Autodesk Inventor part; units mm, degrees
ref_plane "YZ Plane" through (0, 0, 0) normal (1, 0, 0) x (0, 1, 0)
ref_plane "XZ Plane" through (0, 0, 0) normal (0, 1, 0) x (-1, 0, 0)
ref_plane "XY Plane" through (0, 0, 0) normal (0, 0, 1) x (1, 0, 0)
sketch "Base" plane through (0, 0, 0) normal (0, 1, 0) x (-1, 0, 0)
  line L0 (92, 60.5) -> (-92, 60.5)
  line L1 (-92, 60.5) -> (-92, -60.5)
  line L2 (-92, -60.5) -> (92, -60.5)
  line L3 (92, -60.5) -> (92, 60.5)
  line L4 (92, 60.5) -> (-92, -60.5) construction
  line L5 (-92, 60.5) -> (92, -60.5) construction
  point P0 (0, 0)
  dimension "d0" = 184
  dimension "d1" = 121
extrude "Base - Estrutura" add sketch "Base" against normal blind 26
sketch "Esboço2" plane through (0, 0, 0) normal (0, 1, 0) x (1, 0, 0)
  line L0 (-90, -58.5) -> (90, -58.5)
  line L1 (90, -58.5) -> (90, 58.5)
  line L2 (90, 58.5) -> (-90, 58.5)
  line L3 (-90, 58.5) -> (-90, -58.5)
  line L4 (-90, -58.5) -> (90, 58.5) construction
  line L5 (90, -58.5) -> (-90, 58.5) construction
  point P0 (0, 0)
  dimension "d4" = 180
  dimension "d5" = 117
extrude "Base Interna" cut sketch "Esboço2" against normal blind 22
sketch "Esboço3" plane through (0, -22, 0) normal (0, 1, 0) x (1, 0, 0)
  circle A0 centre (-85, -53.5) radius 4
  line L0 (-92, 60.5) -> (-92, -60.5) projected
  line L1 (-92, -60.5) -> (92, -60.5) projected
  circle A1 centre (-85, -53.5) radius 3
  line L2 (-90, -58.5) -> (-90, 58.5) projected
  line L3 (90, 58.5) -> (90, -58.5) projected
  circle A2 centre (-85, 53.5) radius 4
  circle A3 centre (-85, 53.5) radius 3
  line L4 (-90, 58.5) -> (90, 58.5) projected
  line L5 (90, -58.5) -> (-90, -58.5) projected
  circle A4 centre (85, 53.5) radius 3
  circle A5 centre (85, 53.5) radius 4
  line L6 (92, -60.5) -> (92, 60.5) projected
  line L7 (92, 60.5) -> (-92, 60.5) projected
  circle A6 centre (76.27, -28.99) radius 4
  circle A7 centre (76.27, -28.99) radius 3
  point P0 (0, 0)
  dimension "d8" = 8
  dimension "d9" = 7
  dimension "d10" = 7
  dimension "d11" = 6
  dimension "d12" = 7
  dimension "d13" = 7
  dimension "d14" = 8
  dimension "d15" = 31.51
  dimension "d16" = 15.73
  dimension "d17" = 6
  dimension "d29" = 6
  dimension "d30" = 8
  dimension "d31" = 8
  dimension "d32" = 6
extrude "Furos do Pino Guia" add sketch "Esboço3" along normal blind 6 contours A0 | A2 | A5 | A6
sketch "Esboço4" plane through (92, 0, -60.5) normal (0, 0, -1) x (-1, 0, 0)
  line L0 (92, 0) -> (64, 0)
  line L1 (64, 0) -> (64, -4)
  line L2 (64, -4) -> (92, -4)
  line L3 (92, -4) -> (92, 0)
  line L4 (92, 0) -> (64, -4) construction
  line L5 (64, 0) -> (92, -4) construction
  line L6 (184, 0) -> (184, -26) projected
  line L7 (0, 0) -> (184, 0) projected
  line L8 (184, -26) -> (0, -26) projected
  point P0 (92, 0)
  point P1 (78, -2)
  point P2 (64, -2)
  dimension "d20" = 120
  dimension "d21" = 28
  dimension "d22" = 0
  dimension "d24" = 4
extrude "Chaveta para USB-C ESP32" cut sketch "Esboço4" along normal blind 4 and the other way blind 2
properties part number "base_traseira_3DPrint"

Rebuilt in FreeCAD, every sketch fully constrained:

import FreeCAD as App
import Part
import Sketcher

V = App.Vector


def add_polygon(sketch, points):
    """Adds a closed chain of lines whose ends are joined by coincident constraints."""
    first, n = sketch.GeometryCount, len(points)
    for a, b in zip(points, points[1:] + points[:1]):
        sketch.addGeometry(Part.LineSegment(App.Vector(*a, 0), App.Vector(*b, 0)), False)
    for i in range(n):
        sketch.addConstraint(Sketcher.Constraint("Coincident", first + i, 2, first + (i + 1) % n, 1))

doc = App.newDocument("Part")
body = doc.addObject("PartDesign::Body", "Body")

sketch1 = body.newObject("Sketcher::SketchObject", "Sketch")
sketch1.AttachmentSupport = (doc.getObject("XZ_Plane"), [""])
sketch1.MapMode = "FlatFace"
add_polygon(sketch1, [(-92, -60.5), (-92, 60.5), (92, 60.5), (92, -60.5)])
sketch1.addConstraint([
    Sketcher.Constraint("Vertical", 0),
    Sketcher.Constraint("Horizontal", 1),
    Sketcher.Constraint("Vertical", 2),
    Sketcher.Constraint("Horizontal", 3),
    Sketcher.Constraint("Symmetric", 0, 2, 2, 2, -1, 1),
    Sketcher.Constraint("DistanceX", 1, 1, 1, 2, 184.0),
    Sketcher.Constraint("DistanceY", 0, 1, 0, 2, 121.0),
])
pad1 = body.newObject("PartDesign::Pad", "Pad")
pad1.Profile = sketch1
pad1.Length = 26

sketch2 = body.newObject("Sketcher::SketchObject", "Sketch001")
sketch2.AttachmentSupport = (doc.getObject("XZ_Plane"), [""])
sketch2.MapMode = "FlatFace"
add_polygon(sketch2, [(-90, -58.5), (-90, 58.5), (90, 58.5), (90, -58.5)])
sketch2.addConstraint([
    Sketcher.Constraint("Vertical", 0),
    Sketcher.Constraint("Horizontal", 1),
    Sketcher.Constraint("Vertical", 2),
    Sketcher.Constraint("Horizontal", 3),
    Sketcher.Constraint("Symmetric", 0, 2, 2, 2, -1, 1),
    Sketcher.Constraint("DistanceX", 1, 1, 1, 2, 180.0),
    Sketcher.Constraint("DistanceY", 0, 1, 0, 2, 117.0),
])
pocket1 = body.newObject("PartDesign::Pocket", "Pocket")
pocket1.Profile = sketch2
pocket1.Length = 22
pocket1.Reversed = True

sketch3 = body.newObject("Sketcher::SketchObject", "Sketch002")
sketch3.AttachmentSupport = (doc.getObject("XZ_Plane"), [""])
sketch3.MapMode = "FlatFace"
sketch3.AttachmentOffset = App.Placement(V(0, 0, 22), App.Rotation())
sketch3.addGeometry([
    Part.Circle(V(-85, 53.5, 0), V(0, 0, 1), 4),
    Part.Circle(V(-85, 53.5, 0), V(0, 0, 1), 3),
    Part.Circle(V(-85, -53.5, 0), V(0, 0, 1), 4),
    Part.Circle(V(-85, -53.5, 0), V(0, 0, 1), 3),
    Part.Circle(V(85, -53.5, 0), V(0, 0, 1), 4),
    Part.Circle(V(85, -53.5, 0), V(0, 0, 1), 3),
    Part.Circle(V(76.27, 28.99, 0), V(0, 0, 1), 4),
    Part.Circle(V(76.27, 28.99, 0), V(0, 0, 1), 3),
], False)
sketch3.addConstraint([
    Sketcher.Constraint("Coincident", 1, 3, 0, 3),
    Sketcher.Constraint("Coincident", 3, 3, 2, 3),
    Sketcher.Constraint("Coincident", 5, 3, 4, 3),
    Sketcher.Constraint("Coincident", 7, 3, 6, 3),
    Sketcher.Constraint("Equal", 0, 2),
    Sketcher.Constraint("Equal", 1, 3),
    Sketcher.Constraint("Equal", 2, 4),
    Sketcher.Constraint("Equal", 3, 5),
    Sketcher.Constraint("Equal", 4, 6),
    Sketcher.Constraint("Equal", 5, 7),
    Sketcher.Constraint("Symmetric", 0, 3, 4, 3, -1, 1),
    Sketcher.Constraint("Symmetric", 2, 3, 4, 3, -2),
    Sketcher.Constraint("Diameter", 0, 8.0),
    Sketcher.Constraint("Diameter", 1, 6.0),
    Sketcher.Constraint("DistanceX", 0, 3, -1, 1, 85.0),
    Sketcher.Constraint("DistanceY", 2, 3, 0, 3, 107.0),
    Sketcher.Constraint("DistanceX", -1, 1, 6, 3, 76.27),
    Sketcher.Constraint("DistanceY", -1, 1, 6, 3, 28.99),
])
pad2 = body.newObject("PartDesign::Pad", "Pad001")
pad2.Profile = sketch3
pad2.Length = 6
pad2.Reversed = True

sketch4 = body.newObject("Sketcher::SketchObject", "Sketch003")
sketch4.AttachmentSupport = (doc.getObject("XY_Plane"), [""])
sketch4.MapMode = "FlatFace"
sketch4.AttachmentOffset = App.Placement(V(0, 0, -60.5), App.Rotation())
add_polygon(sketch4, [(0, -4), (0, 0), (28, 0), (28, -4)])
sketch4.addConstraint([
    Sketcher.Constraint("Vertical", 0),
    Sketcher.Constraint("Horizontal", 1),
    Sketcher.Constraint("Vertical", 2),
    Sketcher.Constraint("Horizontal", 3),
    Sketcher.Constraint("Coincident", 0, 2, -1, 1),
    Sketcher.Constraint("DistanceX", 1, 1, 1, 2, 28.0),
    Sketcher.Constraint("DistanceY", 0, 1, 0, 2, 4.0),
])
pocket2 = body.newObject("PartDesign::Pocket", "Pocket001")
pocket2.Profile = sketch4
pocket2.Type = "TwoLengths"
pocket2.Length = 4
pocket2.Length2 = 2

doc.recompute()
